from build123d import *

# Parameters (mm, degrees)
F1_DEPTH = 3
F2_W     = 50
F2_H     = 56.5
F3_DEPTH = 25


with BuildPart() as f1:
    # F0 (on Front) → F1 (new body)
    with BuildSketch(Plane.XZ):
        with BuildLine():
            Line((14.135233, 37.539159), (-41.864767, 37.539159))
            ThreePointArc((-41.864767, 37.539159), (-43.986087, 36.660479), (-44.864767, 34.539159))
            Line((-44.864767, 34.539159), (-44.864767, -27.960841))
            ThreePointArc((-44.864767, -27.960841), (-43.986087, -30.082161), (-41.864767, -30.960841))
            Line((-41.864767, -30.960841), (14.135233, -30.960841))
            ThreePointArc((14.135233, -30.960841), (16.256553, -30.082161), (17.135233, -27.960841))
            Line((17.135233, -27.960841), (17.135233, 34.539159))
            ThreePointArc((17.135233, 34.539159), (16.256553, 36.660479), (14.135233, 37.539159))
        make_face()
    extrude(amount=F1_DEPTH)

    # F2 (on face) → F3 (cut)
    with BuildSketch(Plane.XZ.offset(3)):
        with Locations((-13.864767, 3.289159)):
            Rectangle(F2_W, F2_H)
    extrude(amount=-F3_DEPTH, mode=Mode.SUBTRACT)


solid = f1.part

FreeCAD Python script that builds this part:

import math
import FreeCAD as App
import Part
import Sketcher

V = App.Vector
Q = App.Units.Quantity


def add_polygon(sketch, points):
    """Adds a closed chain of lines whose ends are joined by coincident constraints."""
    first, n = sketch.GeometryCount, len(points)
    for a, b in zip(points, points[1:] + points[:1]):
        sketch.addGeometry(Part.LineSegment(App.Vector(*a, 0), App.Vector(*b, 0)), False)
    for i in range(n):
        sketch.addConstraint(Sketcher.Constraint("Coincident", first + i, 2, first + (i + 1) % n, 1))

doc = App.newDocument("Part")
params = doc.addObject("Spreadsheet::Sheet", "Params")
for row, (alias, value) in enumerate([
    ("sketch1_radius", "3.000001 mm"),
    ("sketch1_width", "56 mm"),
    ("sketch1_height", "62.5 mm"),
    ("pad1_length", "3 mm"),
    ("sketch2_width", "50 mm"),
    ("sketch2_height", "56.5 mm"),
    ("pocket1_length", "25 mm"),
], start=1):
    params.set(f"A{row}", alias)
    params.set(f"B{row}", "=" + value)
    params.setAlias(f"B{row}", alias)

body = doc.addObject("PartDesign::Body", "Body")

# Sketch on XZ plane
sketch1 = body.newObject("Sketcher::SketchObject", "Sketch")
sketch1.AttachmentSupport = (doc.getObject("XZ_Plane"), [""])
sketch1.MapMode = "FlatFace"
sketch1.addGeometry(Part.LineSegment(V(14.1, 37.5, 0), V(-41.9, 37.5, 0)), False)
sketch1.addGeometry(Part.ArcOfCircle(Part.Circle(V(-41.9, 34.5, 0), V(0, 0, 1), 3), math.radians(90), math.radians(180)), False)
sketch1.addGeometry(Part.LineSegment(V(-44.9, 34.5, 0), V(-44.9, -28, 0)), False)
sketch1.addGeometry(Part.ArcOfCircle(Part.Circle(V(-41.9, -28, 0), V(0, 0, 1), 3), math.radians(-180), math.radians(-90)), False)
sketch1.addGeometry(Part.LineSegment(V(-41.9, -31, 0), V(14.1, -31, 0)), False)
sketch1.addGeometry(Part.ArcOfCircle(Part.Circle(V(14.1, -28, 0), V(0, 0, 1), 3), math.radians(-90), math.radians(0)), False)
sketch1.addGeometry(Part.LineSegment(V(17.1, -28, 0), V(17.1, 34.5, 0)), False)
sketch1.addGeometry(Part.ArcOfCircle(Part.Circle(V(14.1, 34.5, 0), V(0, 0, 1), 3), math.radians(0), math.radians(90)), False)
sketch1.addConstraint(Sketcher.Constraint("Tangent", 0, 2, 1, 1))
sketch1.addConstraint(Sketcher.Constraint("Tangent", 1, 2, 2, 1))
sketch1.addConstraint(Sketcher.Constraint("Tangent", 2, 2, 3, 1))
sketch1.addConstraint(Sketcher.Constraint("Tangent", 3, 2, 4, 1))
sketch1.addConstraint(Sketcher.Constraint("Tangent", 4, 2, 5, 1))
sketch1.addConstraint(Sketcher.Constraint("Tangent", 5, 2, 6, 1))
sketch1.addConstraint(Sketcher.Constraint("Tangent", 6, 2, 7, 1))
sketch1.addConstraint(Sketcher.Constraint("Tangent", 7, 2, 0, 1))
sketch1.addConstraint(Sketcher.Constraint("Horizontal", 0))
sketch1.addConstraint(Sketcher.Constraint("Vertical", 2))
sketch1.addConstraint(Sketcher.Constraint("Horizontal", 4))
sketch1.addConstraint(Sketcher.Constraint("Vertical", 6))
sketch1.addConstraint(Sketcher.Constraint("Equal", 1, 3))
sketch1.addConstraint(Sketcher.Constraint("Equal", 3, 5))
sketch1.addConstraint(Sketcher.Constraint("Equal", 5, 7))
sketch1.addConstraint(Sketcher.Constraint("Radius", 1, Q("3.000001 mm")))
sketch1.addConstraint(Sketcher.Constraint("DistanceX", 0, 2, 0, 1, Q("56 mm")))
sketch1.addConstraint(Sketcher.Constraint("DistanceY", 2, 2, 2, 1, Q("62.5 mm")))
sketch1.addConstraint(Sketcher.Constraint("DistanceY", 3, 3, -1, 1, Q("27.96084 mm")))
sketch1.addConstraint(Sketcher.Constraint("DistanceX", -1, 1, 5, 3, Q("14.135232 mm")))
sketch1.setExpression("Constraints[15]", "Params.sketch1_radius")
sketch1.setExpression("Constraints[16]", "Params.sketch1_width")
sketch1.setExpression("Constraints[17]", "Params.sketch1_height")
pad1 = body.newObject("PartDesign::Pad", "Pad")
pad1.Profile = sketch1
pad1.setExpression("Length", "Params.pad1_length")

# Sketch on XZ plane
sketch2 = body.newObject("Sketcher::SketchObject", "Sketch001")
sketch2.AttachmentSupport = (doc.getObject("XZ_Plane"), [""])
sketch2.MapMode = "FlatFace"
sketch2.AttachmentOffset = App.Placement(V(0, 0, 3), App.Rotation())
add_polygon(sketch2, [(-39, 32), (-39, -25), (11, -25), (11, 32)])  # lines 0-3
sketch2.addConstraint(Sketcher.Constraint("Vertical", 0))
sketch2.addConstraint(Sketcher.Constraint("Horizontal", 1))
sketch2.addConstraint(Sketcher.Constraint("Vertical", 2))
sketch2.addConstraint(Sketcher.Constraint("Horizontal", 3))
sketch2.addConstraint(Sketcher.Constraint("DistanceX", 1, 1, 1, 2, Q("50 mm")))
sketch2.addConstraint(Sketcher.Constraint("DistanceY", 0, 2, 0, 1, Q("56.5 mm")))
sketch2.addConstraint(Sketcher.Constraint("DistanceY", 0, 2, -1, 1, Q("24.960841 mm")))
sketch2.addConstraint(Sketcher.Constraint("DistanceX", 0, 2, -1, 1, Q("38.864767 mm")))
sketch2.setExpression("Constraints[8]", "Params.sketch2_width")
sketch2.setExpression("Constraints[9]", "Params.sketch2_height")
pocket1 = body.newObject("PartDesign::Pocket", "Pocket")
pocket1.Profile = sketch2
pocket1.setExpression("Length", "Params.pocket1_length")

doc.recompute()
